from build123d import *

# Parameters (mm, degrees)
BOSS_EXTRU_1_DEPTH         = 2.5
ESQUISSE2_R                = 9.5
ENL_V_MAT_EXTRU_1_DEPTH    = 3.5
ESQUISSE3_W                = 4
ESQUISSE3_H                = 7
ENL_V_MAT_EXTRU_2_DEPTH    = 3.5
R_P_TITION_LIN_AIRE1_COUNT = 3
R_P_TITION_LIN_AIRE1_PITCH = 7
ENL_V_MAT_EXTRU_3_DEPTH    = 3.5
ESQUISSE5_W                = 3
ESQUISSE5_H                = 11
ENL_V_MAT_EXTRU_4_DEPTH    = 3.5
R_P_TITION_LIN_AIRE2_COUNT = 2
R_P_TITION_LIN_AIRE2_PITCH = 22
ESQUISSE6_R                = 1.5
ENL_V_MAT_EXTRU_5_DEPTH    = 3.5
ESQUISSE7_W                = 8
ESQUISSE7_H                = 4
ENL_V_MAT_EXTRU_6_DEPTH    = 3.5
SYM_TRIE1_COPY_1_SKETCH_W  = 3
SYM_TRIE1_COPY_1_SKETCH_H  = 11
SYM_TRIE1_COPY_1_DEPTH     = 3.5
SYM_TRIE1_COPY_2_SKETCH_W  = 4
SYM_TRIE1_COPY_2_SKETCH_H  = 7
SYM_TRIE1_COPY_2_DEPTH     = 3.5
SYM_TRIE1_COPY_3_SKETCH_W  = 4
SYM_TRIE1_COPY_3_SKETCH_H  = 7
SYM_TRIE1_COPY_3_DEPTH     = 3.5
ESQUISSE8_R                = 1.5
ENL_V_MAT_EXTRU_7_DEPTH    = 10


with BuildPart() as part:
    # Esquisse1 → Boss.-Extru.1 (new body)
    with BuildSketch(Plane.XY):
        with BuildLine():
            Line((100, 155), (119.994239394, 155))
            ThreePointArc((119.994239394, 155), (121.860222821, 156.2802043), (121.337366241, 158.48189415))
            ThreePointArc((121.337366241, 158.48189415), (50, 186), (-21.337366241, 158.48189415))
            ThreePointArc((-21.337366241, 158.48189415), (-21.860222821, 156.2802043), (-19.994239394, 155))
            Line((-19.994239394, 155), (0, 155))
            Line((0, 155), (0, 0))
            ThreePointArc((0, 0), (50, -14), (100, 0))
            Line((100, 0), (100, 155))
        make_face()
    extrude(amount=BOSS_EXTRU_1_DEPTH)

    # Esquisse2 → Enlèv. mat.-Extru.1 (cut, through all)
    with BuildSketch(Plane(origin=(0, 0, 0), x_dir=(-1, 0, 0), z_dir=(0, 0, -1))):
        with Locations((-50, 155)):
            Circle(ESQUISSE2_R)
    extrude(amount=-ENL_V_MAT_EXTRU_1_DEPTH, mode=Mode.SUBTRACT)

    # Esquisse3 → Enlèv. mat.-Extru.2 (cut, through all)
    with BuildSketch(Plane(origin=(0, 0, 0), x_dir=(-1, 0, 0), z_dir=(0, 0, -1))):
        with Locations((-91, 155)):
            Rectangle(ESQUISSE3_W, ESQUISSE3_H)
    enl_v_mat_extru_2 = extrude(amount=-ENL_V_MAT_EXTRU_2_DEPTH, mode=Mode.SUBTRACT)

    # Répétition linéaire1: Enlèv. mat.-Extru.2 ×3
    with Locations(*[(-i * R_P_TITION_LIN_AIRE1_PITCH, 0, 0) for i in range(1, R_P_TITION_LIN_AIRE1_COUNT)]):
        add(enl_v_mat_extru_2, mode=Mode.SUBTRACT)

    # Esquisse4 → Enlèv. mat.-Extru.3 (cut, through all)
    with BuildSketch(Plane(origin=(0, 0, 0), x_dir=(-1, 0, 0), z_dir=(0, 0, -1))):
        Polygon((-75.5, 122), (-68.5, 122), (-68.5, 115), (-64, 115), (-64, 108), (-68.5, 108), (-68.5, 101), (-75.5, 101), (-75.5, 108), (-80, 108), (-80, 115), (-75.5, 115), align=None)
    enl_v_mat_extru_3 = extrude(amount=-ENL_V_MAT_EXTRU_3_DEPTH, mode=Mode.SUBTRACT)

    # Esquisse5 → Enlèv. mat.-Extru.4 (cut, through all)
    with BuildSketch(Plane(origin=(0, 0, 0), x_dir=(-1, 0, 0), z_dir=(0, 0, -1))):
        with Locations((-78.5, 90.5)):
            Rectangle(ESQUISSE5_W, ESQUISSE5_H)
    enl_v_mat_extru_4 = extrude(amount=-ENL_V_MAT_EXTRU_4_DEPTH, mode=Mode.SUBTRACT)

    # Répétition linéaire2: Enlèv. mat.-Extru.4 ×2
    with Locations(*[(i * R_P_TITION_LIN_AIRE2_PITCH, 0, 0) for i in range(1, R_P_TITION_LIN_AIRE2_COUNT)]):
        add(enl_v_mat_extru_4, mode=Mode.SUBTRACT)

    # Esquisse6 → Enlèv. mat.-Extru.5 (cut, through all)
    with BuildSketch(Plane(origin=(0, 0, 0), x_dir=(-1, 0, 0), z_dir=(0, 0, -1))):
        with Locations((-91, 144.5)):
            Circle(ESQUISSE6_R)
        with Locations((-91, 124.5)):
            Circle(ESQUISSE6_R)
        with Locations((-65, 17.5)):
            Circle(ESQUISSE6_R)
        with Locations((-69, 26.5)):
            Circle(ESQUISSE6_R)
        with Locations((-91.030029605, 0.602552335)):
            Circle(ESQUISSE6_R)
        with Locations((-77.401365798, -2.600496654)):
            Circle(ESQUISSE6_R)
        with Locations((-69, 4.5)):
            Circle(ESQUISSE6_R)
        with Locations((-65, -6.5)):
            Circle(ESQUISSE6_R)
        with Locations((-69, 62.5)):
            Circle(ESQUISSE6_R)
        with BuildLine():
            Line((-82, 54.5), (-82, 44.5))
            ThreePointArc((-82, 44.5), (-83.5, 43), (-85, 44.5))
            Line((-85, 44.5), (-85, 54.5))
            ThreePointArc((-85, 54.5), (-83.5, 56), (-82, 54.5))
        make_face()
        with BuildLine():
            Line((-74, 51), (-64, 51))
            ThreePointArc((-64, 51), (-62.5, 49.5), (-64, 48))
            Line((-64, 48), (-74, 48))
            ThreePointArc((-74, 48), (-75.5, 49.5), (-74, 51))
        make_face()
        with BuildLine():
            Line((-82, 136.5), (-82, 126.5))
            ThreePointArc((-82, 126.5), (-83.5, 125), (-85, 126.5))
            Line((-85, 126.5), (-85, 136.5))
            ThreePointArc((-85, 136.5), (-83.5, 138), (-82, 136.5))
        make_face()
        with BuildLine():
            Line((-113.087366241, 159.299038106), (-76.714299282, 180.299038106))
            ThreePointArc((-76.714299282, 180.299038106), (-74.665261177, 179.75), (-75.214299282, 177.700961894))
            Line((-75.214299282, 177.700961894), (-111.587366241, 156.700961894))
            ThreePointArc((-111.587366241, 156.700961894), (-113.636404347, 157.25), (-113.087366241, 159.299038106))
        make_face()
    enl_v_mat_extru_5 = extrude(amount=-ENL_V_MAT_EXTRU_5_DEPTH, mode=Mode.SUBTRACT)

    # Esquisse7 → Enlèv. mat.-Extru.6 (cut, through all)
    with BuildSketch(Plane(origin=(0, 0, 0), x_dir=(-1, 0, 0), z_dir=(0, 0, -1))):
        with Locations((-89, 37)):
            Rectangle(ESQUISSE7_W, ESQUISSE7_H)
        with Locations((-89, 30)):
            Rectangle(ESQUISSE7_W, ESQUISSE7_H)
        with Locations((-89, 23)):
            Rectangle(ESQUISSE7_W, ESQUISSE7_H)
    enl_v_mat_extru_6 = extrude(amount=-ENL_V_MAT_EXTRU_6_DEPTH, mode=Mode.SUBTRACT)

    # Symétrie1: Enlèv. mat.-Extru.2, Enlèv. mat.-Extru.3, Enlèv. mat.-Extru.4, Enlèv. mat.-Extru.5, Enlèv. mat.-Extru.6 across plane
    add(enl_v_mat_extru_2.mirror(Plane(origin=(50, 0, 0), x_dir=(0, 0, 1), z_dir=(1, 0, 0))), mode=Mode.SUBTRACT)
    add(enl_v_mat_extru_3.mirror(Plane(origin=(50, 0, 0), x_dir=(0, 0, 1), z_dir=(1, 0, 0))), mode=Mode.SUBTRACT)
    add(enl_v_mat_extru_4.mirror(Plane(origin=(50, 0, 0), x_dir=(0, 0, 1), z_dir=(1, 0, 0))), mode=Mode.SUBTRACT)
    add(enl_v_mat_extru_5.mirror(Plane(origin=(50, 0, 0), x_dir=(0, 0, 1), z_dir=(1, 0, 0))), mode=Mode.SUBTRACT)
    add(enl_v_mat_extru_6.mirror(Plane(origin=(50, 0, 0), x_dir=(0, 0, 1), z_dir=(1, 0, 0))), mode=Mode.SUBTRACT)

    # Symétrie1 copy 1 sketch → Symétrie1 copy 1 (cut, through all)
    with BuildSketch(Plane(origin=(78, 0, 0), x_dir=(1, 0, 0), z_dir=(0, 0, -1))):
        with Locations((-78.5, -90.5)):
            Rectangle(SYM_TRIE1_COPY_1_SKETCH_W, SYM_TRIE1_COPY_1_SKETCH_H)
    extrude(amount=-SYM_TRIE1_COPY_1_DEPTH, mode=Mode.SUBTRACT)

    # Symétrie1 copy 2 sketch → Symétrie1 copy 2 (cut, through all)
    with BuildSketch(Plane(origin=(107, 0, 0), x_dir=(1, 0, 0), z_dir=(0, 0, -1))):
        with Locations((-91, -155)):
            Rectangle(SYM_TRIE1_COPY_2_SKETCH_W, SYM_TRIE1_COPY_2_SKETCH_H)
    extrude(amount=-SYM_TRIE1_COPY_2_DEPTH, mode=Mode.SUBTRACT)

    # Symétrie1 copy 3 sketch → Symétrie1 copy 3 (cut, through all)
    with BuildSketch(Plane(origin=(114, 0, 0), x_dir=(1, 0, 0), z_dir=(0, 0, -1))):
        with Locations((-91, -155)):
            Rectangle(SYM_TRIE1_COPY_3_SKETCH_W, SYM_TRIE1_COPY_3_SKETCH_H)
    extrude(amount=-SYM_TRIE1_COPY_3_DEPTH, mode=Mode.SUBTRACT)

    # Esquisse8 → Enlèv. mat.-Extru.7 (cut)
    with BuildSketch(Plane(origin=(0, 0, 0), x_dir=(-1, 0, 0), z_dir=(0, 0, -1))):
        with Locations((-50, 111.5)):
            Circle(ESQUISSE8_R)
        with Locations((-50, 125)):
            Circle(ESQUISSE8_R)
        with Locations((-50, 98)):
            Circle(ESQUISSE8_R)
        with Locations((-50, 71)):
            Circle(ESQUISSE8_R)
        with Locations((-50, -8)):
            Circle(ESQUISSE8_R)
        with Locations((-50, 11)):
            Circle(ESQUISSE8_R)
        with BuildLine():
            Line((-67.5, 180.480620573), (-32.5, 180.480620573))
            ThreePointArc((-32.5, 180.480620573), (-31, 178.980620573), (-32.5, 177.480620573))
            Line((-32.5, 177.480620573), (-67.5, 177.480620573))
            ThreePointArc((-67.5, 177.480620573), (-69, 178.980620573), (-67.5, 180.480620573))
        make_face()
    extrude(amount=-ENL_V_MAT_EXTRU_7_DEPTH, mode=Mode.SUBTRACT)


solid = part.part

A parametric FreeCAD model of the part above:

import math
import FreeCAD as App
import Part
import Sketcher
from FreeCAD import Vector
Q = App.Units.Quantity

doc = App.newDocument("Part")
params = doc.addObject("Spreadsheet::Sheet", "Params")
for row, (alias, value) in enumerate([
    ("sketch1_radius", "2 mm"),
    ("sketch1_height", "155 mm"),
    ("pad1_length", "2.5 mm"),
    ("sketch2_diameter", "19 mm"),
    ("sketch3_width", "4 mm"),
    ("sketch3_height", "7 mm"),
    ("linearpattern_pitch", "7 mm"),
    ("sketch4_width", "7 mm"),
    ("sketch4_width2", "4.5 mm"),
    ("sketch5_width", "3 mm"),
    ("sketch5_height", "11 mm"),
    ("linearpattern2_pitch", "22 mm"),
    ("sketch6_diameter", "3 mm"),
    ("sketch6_width", "10 mm"),
    ("sketch6_length", "42 mm"),
    ("sketch7_width", "8 mm"),
    ("sketch7_height", "4 mm"),
    ("sketch8_width", "3 mm"),
    ("sketch8_height", "11 mm"),
    ("sketch9_width", "4 mm"),
    ("sketch9_height", "7 mm"),
    ("sketch10_width", "4 mm"),
    ("sketch10_height", "7 mm"),
    ("sketch11_diameter", "3 mm"),
    ("sketch11_width", "35 mm"),
    ("pocket10_length", "10 mm"),
], start=1):
    params.set(f"A{row}", alias)
    params.set(f"B{row}", "=" + value)
    params.setAlias(f"B{row}", alias)

body = doc.addObject("PartDesign::Body", "Body")

# Sketch on XY plane
sketch1 = doc.addObject("Sketcher::SketchObject", "Sketch")
body.addObject(sketch1)
sketch1.AttachmentSupport = (doc.XY_Plane, [""])
sketch1.MapMode = "FlatFace"
sketch1.addGeometry([
    Part.LineSegment(Vector(100, 155, 0), Vector(120, 155, 0)),  # 0
    Part.ArcOfCircle(Part.Circle(Vector(120, 157, 0), Vector(0, 0, 1), 2), math.radians(-90), math.radians(48)),  # 1
    Part.ArcOfCircle(Part.Circle(Vector(50, 79.8, 0), Vector(0, 0, 1), 106.2), math.radians(48), math.radians(132)),  # 2
    Part.ArcOfCircle(Part.Circle(Vector(-20, 157, 0), Vector(0, 0, 1), 2), math.radians(132), math.radians(270)),  # 3
    Part.LineSegment(Vector(-20, 155, 0), Vector(0, 155, 0)),  # 4
    Part.LineSegment(Vector(0, 155, 0), Vector(0, 0, 0)),  # 5
    Part.ArcOfCircle(Part.Circle(Vector(50, 82.3, 0), Vector(0, 0, 1), 96.3), math.radians(-121), math.radians(-59)),  # 6
    Part.LineSegment(Vector(100, 0, 0), Vector(100, 155, 0)),  # 7
], False)
sketch1.addConstraint([
    Sketcher.Constraint("Tangent", 0, 2, 1, 1),
    Sketcher.Constraint("Tangent", 1, 2, 2, 1),
    Sketcher.Constraint("Tangent", 2, 2, 3, 1),
    Sketcher.Constraint("Tangent", 3, 2, 4, 1),
    Sketcher.Constraint("Coincident", 4, 2, 5, 1),
    Sketcher.Constraint("Coincident", 5, 2, 6, 1),
    Sketcher.Constraint("Coincident", 6, 2, 7, 1),
    Sketcher.Constraint("Coincident", 7, 2, 0, 1),
    Sketcher.Constraint("Horizontal", 0),
    Sketcher.Constraint("Horizontal", 4),
    Sketcher.Constraint("Vertical", 5),
    Sketcher.Constraint("Vertical", 7),
    Sketcher.Constraint("Coincident", 5, 2, -1, 1),
    Sketcher.Constraint("Equal", 1, 3),
    Sketcher.Constraint("PointOnObject", 6, 2, -1),
    Sketcher.Constraint("Horizontal", 1, 3, 3, 3),
    Sketcher.Constraint("Vertical", 2, 3, 6, 3),
    Sketcher.Constraint("Radius", 1, 2.0),
    Sketcher.Constraint("DistanceY", 5, 2, 5, 1, 155.0),
    Sketcher.Constraint("DistanceX", -1, 1, 2, 3, 50.0),
    Sketcher.Constraint("Radius", 2, 106.225806),
    Sketcher.Constraint("Radius", 6, 96.285714),
    Sketcher.Constraint("DistanceX", 0, 1, 0, 2, 19.994239),
])
sketch1.setExpression("Constraints[17]", "Params.sketch1_radius")
sketch1.setExpression("Constraints[18]", "Params.sketch1_height")
pad1 = doc.addObject("PartDesign::Pad", "Pad")
body.addObject(pad1)
pad1.Profile = sketch1
pad1.setExpression("Length", "Params.pad1_length")

# Sketch on XY plane
sketch2 = doc.addObject("Sketcher::SketchObject", "Sketch001")
body.addObject(sketch2)
sketch2.AttachmentSupport = (doc.XY_Plane, [""])
sketch2.MapMode = "FlatFace"
sketch2.addGeometry(Part.Circle(Vector(50, 155, 0), Vector(0, 0, 1), 10), False)
sketch2.addConstraint([
    Sketcher.Constraint("Diameter", 0, 19.0),
    Sketcher.Constraint("DistanceX", -1, 1, 0, 3, 50.0),
    Sketcher.Constraint("DistanceY", -1, 1, 0, 3, 155.0),
])
sketch2.setExpression("Constraints[0]", "Params.sketch2_diameter")
pocket1 = doc.addObject("PartDesign::Pocket", "Pocket")
body.addObject(pocket1)
pocket1.Profile = sketch2
pocket1.Type = "ThroughAll"
pocket1.Reversed = True

# Sketch on XY plane
sketch3 = doc.addObject("Sketcher::SketchObject", "Sketch002")
body.addObject(sketch3)
sketch3.AttachmentSupport = (doc.XY_Plane, [""])
sketch3.MapMode = "FlatFace"
sketch3.addGeometry([
    Part.LineSegment(Vector(93, 158.5, 0), Vector(93, 151.5, 0)),
    Part.LineSegment(Vector(93, 151.5, 0), Vector(89, 151.5, 0)),
    Part.LineSegment(Vector(89, 151.5, 0), Vector(89, 158.5, 0)),
    Part.LineSegment(Vector(89, 158.5, 0), Vector(93, 158.5, 0)),
], False)
sketch3.addConstraint([
    Sketcher.Constraint("Coincident", 0, 2, 1, 1),
    Sketcher.Constraint("Coincident", 1, 2, 2, 1),
    Sketcher.Constraint("Coincident", 2, 2, 3, 1),
    Sketcher.Constraint("Coincident", 3, 2, 0, 1),
    Sketcher.Constraint("Vertical", 0),
    Sketcher.Constraint("Horizontal", 1),
    Sketcher.Constraint("Vertical", 2),
    Sketcher.Constraint("Horizontal", 3),
    Sketcher.Constraint("DistanceX", 1, 2, 1, 1, 4.0),
    Sketcher.Constraint("DistanceY", 0, 2, 0, 1, 7.0),
    Sketcher.Constraint("DistanceX", -1, 1, 0, 2, 93.0),
    Sketcher.Constraint("DistanceY", -1, 1, 0, 2, 151.5),
])
sketch3.setExpression("Constraints[8]", "Params.sketch3_width")
sketch3.setExpression("Constraints[9]", "Params.sketch3_height")
pocket2 = doc.addObject("PartDesign::Pocket", "Pocket001")
body.addObject(pocket2)
pocket2.Profile = sketch3
pocket2.Type = "ThroughAll"
pocket2.Reversed = True
doc.recompute()

linearpattern = doc.addObject("PartDesign::LinearPattern", "LinearPattern")
body.addObject(linearpattern)
linearpattern.Originals = [pocket2]
linearpattern.Direction = (doc.X_Axis, [""])
linearpattern.Mode = "offset"
linearpattern.setExpression("Offset", "Params.linearpattern_pitch")
linearpattern.Occurrences = 3
linearpattern.Reversed = True
body.Tip = linearpattern

# Sketch on XY plane
sketch4 = doc.addObject("Sketcher::SketchObject", "Sketch003")
body.addObject(sketch4)
sketch4.AttachmentSupport = (doc.XY_Plane, [""])
sketch4.MapMode = "FlatFace"
sketch4.addGeometry([
    Part.LineSegment(Vector(68.5, 122, 0), Vector(75.5, 122, 0)),  # 0
    Part.LineSegment(Vector(75.5, 122, 0), Vector(75.5, 115, 0)),  # 1
    Part.LineSegment(Vector(75.5, 115, 0), Vector(80, 115, 0)),  # 2
    Part.LineSegment(Vector(80, 115, 0), Vector(80, 108, 0)),  # 3
    Part.LineSegment(Vector(80, 108, 0), Vector(75.5, 108, 0)),  # 4
    Part.LineSegment(Vector(75.5, 108, 0), Vector(75.5, 101, 0)),  # 5
    Part.LineSegment(Vector(75.5, 101, 0), Vector(68.5, 101, 0)),  # 6
    Part.LineSegment(Vector(68.5, 101, 0), Vector(68.5, 108, 0)),  # 7
    Part.LineSegment(Vector(68.5, 108, 0), Vector(64, 108, 0)),  # 8
    Part.LineSegment(Vector(64, 108, 0), Vector(64, 115, 0)),  # 9
    Part.LineSegment(Vector(64, 115, 0), Vector(68.5, 115, 0)),  # 10
    Part.LineSegment(Vector(68.5, 115, 0), Vector(68.5, 122, 0)),  # 11
], False)
sketch4.addConstraint([
    Sketcher.Constraint("Coincident", 0, 2, 1, 1),
    Sketcher.Constraint("Coincident", 1, 2, 2, 1),
    Sketcher.Constraint("Coincident", 2, 2, 3, 1),
    Sketcher.Constraint("Coincident", 3, 2, 4, 1),
    Sketcher.Constraint("Coincident", 4, 2, 5, 1),
    Sketcher.Constraint("Coincident", 5, 2, 6, 1),
    Sketcher.Constraint("Coincident", 6, 2, 7, 1),
    Sketcher.Constraint("Coincident", 7, 2, 8, 1),
    Sketcher.Constraint("Coincident", 8, 2, 9, 1),
    Sketcher.Constraint("Coincident", 9, 2, 10, 1),
    Sketcher.Constraint("Coincident", 10, 2, 11, 1),
    Sketcher.Constraint("Coincident", 11, 2, 0, 1),
    Sketcher.Constraint("Horizontal", 0),
    Sketcher.Constraint("Vertical", 1),
    Sketcher.Constraint("Horizontal", 2),
    Sketcher.Constraint("Vertical", 3),
    Sketcher.Constraint("Horizontal", 4),
    Sketcher.Constraint("Vertical", 5),
    Sketcher.Constraint("Horizontal", 6),
    Sketcher.Constraint("Vertical", 7),
    Sketcher.Constraint("Horizontal", 8),
    Sketcher.Constraint("Vertical", 9),
    Sketcher.Constraint("Horizontal", 10),
    Sketcher.Constraint("Vertical", 11),
    Sketcher.Constraint("Horizontal", 4, 2, 7, 2),
    Sketcher.Constraint("Horizontal", 2, 2, 9, 2),
    Sketcher.Constraint("Vertical", 1, 2, 4, 2),
    Sketcher.Constraint("Vertical", 7, 2, 10, 2),
    Sketcher.Constraint("Equal", 4, 8),
    Sketcher.Constraint("Equal", 6, 1),
    Sketcher.Constraint("Equal", 1, 3),
    Sketcher.Constraint("Equal", 3, 5),
    Sketcher.Constraint("DistanceX", 0, 1, 0, 2, 7.0),
    Sketcher.Constraint("DistanceX", 2, 1, 2, 2, 4.5),
    Sketcher.Constraint("DistanceY", -1, 1, 0, 2, 122.0),
    Sketcher.Constraint("DistanceX", -1, 1, 2, 2, 80.0),
])
sketch4.setExpression("Constraints[32]", "Params.sketch4_width")
sketch4.setExpression("Constraints[33]", "Params.sketch4_width2")
pocket3 = doc.addObject("PartDesign::Pocket", "Pocket002")
body.addObject(pocket3)
pocket3.Profile = sketch4
pocket3.Type = "ThroughAll"
pocket3.Reversed = True

# Sketch on XY plane
sketch5 = doc.addObject("Sketcher::SketchObject", "Sketch004")
body.addObject(sketch5)
sketch5.AttachmentSupport = (doc.XY_Plane, [""])
sketch5.MapMode = "FlatFace"
sketch5.addGeometry([
    Part.LineSegment(Vector(80, 96, 0), Vector(80, 85, 0)),
    Part.LineSegment(Vector(80, 85, 0), Vector(77, 85, 0)),
    Part.LineSegment(Vector(77, 85, 0), Vector(77, 96, 0)),
    Part.LineSegment(Vector(77, 96, 0), Vector(80, 96, 0)),
], False)
sketch5.addConstraint([
    Sketcher.Constraint("Coincident", 0, 2, 1, 1),
    Sketcher.Constraint("Coincident", 1, 2, 2, 1),
    Sketcher.Constraint("Coincident", 2, 2, 3, 1),
    Sketcher.Constraint("Coincident", 3, 2, 0, 1),
    Sketcher.Constraint("Vertical", 0),
    Sketcher.Constraint("Horizontal", 1),
    Sketcher.Constraint("Vertical", 2),
    Sketcher.Constraint("Horizontal", 3),
    Sketcher.Constraint("DistanceX", 1, 2, 1, 1, 3.0),
    Sketcher.Constraint("DistanceY", 0, 2, 0, 1, 11.0),
    Sketcher.Constraint("DistanceX", -1, 1, 0, 2, 80.0),
    Sketcher.Constraint("DistanceY", -1, 1, 0, 2, 85.0),
])
sketch5.setExpression("Constraints[8]", "Params.sketch5_width")
sketch5.setExpression("Constraints[9]", "Params.sketch5_height")
pocket4 = doc.addObject("PartDesign::Pocket", "Pocket003")
body.addObject(pocket4)
pocket4.Profile = sketch5
pocket4.Type = "ThroughAll"
pocket4.Reversed = True
doc.recompute()

linearpattern2 = doc.addObject("PartDesign::LinearPattern", "LinearPattern001")
body.addObject(linearpattern2)
linearpattern2.Originals = [pocket4]
linearpattern2.Direction = (doc.X_Axis, [""])
linearpattern2.Mode = "offset"
linearpattern2.setExpression("Offset", "Params.linearpattern2_pitch")
linearpattern2.Occurrences = 2
body.Tip = linearpattern2

# Sketch on XY plane
sketch6 = doc.addObject("Sketcher::SketchObject", "Sketch005")
body.addObject(sketch6)
sketch6.AttachmentSupport = (doc.XY_Plane, [""])
sketch6.MapMode = "FlatFace"
sketch6.addGeometry([
    Part.Circle(Vector(91, 144.5, 0), Vector(0, 0, 1), 1.5),  # 0
    Part.Circle(Vector(91, 124.5, 0), Vector(0, 0, 1), 1.5),  # 1
    Part.Circle(Vector(65, 17.5, 0), Vector(0, 0, 1), 1.5),  # 2
    Part.Circle(Vector(69, 26.5, 0), Vector(0, 0, 1), 1.5),  # 3
    Part.Circle(Vector(91, 0.6, 0), Vector(0, 0, 1), 1.5),  # 4
    Part.Circle(Vector(77.4, -2.6, 0), Vector(0, 0, 1), 1.5),  # 5
    Part.Circle(Vector(69, 4.5, 0), Vector(0, 0, 1), 1.5),  # 6
    Part.Circle(Vector(65, -6.5, 0), Vector(0, 0, 1), 1.5),  # 7
    Part.Circle(Vector(69, 62.5, 0), Vector(0, 0, 1), 1.5),  # 8
    Part.LineSegment(Vector(82, 44.5, 0), Vector(82, 54.5, 0)),  # 9
    Part.ArcOfCircle(Part.Circle(Vector(83.5, 54.5, 0), Vector(0, 0, 1), 1.5), math.radians(0), math.radians(180)),  # 10
    Part.LineSegment(Vector(85, 54.5, 0), Vector(85, 44.5, 0)),  # 11
    Part.ArcOfCircle(Part.Circle(Vector(83.5, 44.5, 0), Vector(0, 0, 1), 1.5), math.radians(180), math.radians(360)),  # 12
    Part.LineSegment(Vector(64, 51, 0), Vector(74, 51, 0)),  # 13
    Part.ArcOfCircle(Part.Circle(Vector(74, 49.5, 0), Vector(0, 0, 1), 1.5), math.radians(-90), math.radians(90)),  # 14
    Part.LineSegment(Vector(74, 48, 0), Vector(64, 48, 0)),  # 15
    Part.ArcOfCircle(Part.Circle(Vector(64, 49.5, 0), Vector(0, 0, 1), 1.5), math.radians(90), math.radians(270)),  # 16
    Part.LineSegment(Vector(82, 126.5, 0), Vector(82, 136.5, 0)),  # 17
    Part.ArcOfCircle(Part.Circle(Vector(83.5, 136.5, 0), Vector(0, 0, 1), 1.5), math.radians(0), math.radians(180)),  # 18
    Part.LineSegment(Vector(85, 136.5, 0), Vector(85, 126.5, 0)),  # 19
    Part.ArcOfCircle(Part.Circle(Vector(83.5, 126.5, 0), Vector(0, 0, 1), 1.5), math.radians(180), math.radians(360)),  # 20
    Part.LineSegment(Vector(76.7, 180.3, 0), Vector(113.1, 159.3, 0)),  # 21
    Part.ArcOfCircle(Part.Circle(Vector(112.3, 158, 0), Vector(0, 0, 1), 1.5), math.radians(-120), math.radians(60)),  # 22
    Part.LineSegment(Vector(111.6, 156.7, 0), Vector(75.2, 177.7, 0)),  # 23
    Part.ArcOfCircle(Part.Circle(Vector(76, 179, 0), Vector(0, 0, 1), 1.5), math.radians(60), math.radians(240)),  # 24
], False)
sketch6.addConstraint([
    Sketcher.Constraint("Tangent", 9, 2, 10, 2),
    Sketcher.Constraint("Tangent", 10, 1, 11, 1),
    Sketcher.Constraint("Tangent", 11, 2, 12, 2),
    Sketcher.Constraint("Tangent", 12, 1, 9, 1),
    Sketcher.Constraint("Tangent", 13, 2, 14, 2),
    Sketcher.Constraint("Tangent", 14, 1, 15, 1),
    Sketcher.Constraint("Tangent", 15, 2, 16, 2),
    Sketcher.Constraint("Tangent", 16, 1, 13, 1),
    Sketcher.Constraint("Tangent", 17, 2, 18, 2),
    Sketcher.Constraint("Tangent", 18, 1, 19, 1),
    Sketcher.Constraint("Tangent", 19, 2, 20, 2),
    Sketcher.Constraint("Tangent", 20, 1, 17, 1),
    Sketcher.Constraint("Tangent", 21, 2, 22, 2),
    Sketcher.Constraint("Tangent", 22, 1, 23, 1),
    Sketcher.Constraint("Tangent", 23, 2, 24, 2),
    Sketcher.Constraint("Tangent", 24, 1, 21, 1),
    Sketcher.Constraint("Vertical", 9),
    Sketcher.Constraint("Vertical", 11),
    Sketcher.Constraint("Horizontal", 13),
    Sketcher.Constraint("Horizontal", 15),
    Sketcher.Constraint("Vertical", 17),
    Sketcher.Constraint("Vertical", 19),
    Sketcher.Constraint("Equal", 0, 1),
    Sketcher.Constraint("Equal", 1, 2),
    Sketcher.Constraint("Equal", 2, 3),
    Sketcher.Constraint("Equal", 3, 4),
    Sketcher.Constraint("Equal", 4, 5),
    Sketcher.Constraint("Equal", 5, 6),
    Sketcher.Constraint("Equal", 6, 7),
    Sketcher.Constraint("Equal", 7, 8),
    Sketcher.Constraint("Equal", 8, 10),
    Sketcher.Constraint("Equal", 12, 14),
    Sketcher.Constraint("Equal", 16, 18),
    Sketcher.Constraint("Equal", 20, 22),
    Sketcher.Constraint("Equal", 22, 24),
    Sketcher.Constraint("Vertical", 0, 3, 1, 3),
    Sketcher.Constraint("Vertical", 3, 3, 6, 3),
    Sketcher.Constraint("Vertical", 2, 3, 7, 3),
    Sketcher.Constraint("Vertical", 6, 3, 8, 3),
    Sketcher.Constraint("Vertical", 12, 3, 18, 3),
    Sketcher.Constraint("Equal", 15, 9),
    Sketcher.Constraint("Equal", 11, 17),
    Sketcher.Constraint("Diameter", 0, 3.0),
    Sketcher.Constraint("DistanceX", 13, 1, 13, 2, 10.0),
    Sketcher.Constraint("Angle", 21, Q("-30 deg")),
    Sketcher.Constraint("Distance", 21, 42.0),
    Sketcher.Constraint("DistanceX", -1, 1, 0, 3, 91.0),
    Sketcher.Constraint("DistanceX", -1, 1, 2, 3, 65.0),
    Sketcher.Constraint("DistanceX", -1, 1, 3, 3, 69.0),
    Sketcher.Constraint("DistanceX", -1, 1, 14, 3, 74.0),
    Sketcher.Constraint("DistanceY", -1, 1, 22, 3, 158.0),
    Sketcher.Constraint("DistanceX", -1, 1, 9, 2, 82.0),
    Sketcher.Constraint("DistanceY", -1, 1, 13, 2, 51.0),
    Sketcher.Constraint("DistanceY", 1, 3, 0, 3, 20.0),
    Sketcher.Constraint("DistanceY", 2, 3, 1, 3, 107.0),
    Sketcher.Constraint("DistanceY", 2, 3, 3, 3, 9.0),
    Sketcher.Constraint("DistanceY", 6, 3, 2, 3, 13.0),
    Sketcher.Constraint("DistanceY", 7, 3, 6, 3, 11.0),
    Sketcher.Constraint("DistanceY", 3, 3, 8, 3, 36.0),
    Sketcher.Constraint("DistanceY", 10, 3, 8, 3, 8.0),
    Sketcher.Constraint("DistanceY", 14, 3, 10, 3, 5.0),
    Sketcher.Constraint("DistanceY", 18, 3, 0, 3, 8.0),
    Sketcher.Constraint("DistanceX", -1, 1, 24, 3, 75.964299),
    Sketcher.Constraint("DistanceX", -1, 1, 4, 3, 91.03003),
    Sketcher.Constraint("DistanceY", 5, 3, 4, 3, 3.203049),
    Sketcher.Constraint("DistanceY", -1, 1, 4, 3, 0.602552),
    Sketcher.Constraint("DistanceX", -1, 1, 5, 3, 77.401366),
])
sketch6.setExpression("Constraints[42]", "Params.sketch6_diameter")
sketch6.setExpression("Constraints[43]", "Params.sketch6_width")
sketch6.setExpression("Constraints[45]", "Params.sketch6_length")
pocket5 = doc.addObject("PartDesign::Pocket", "Pocket004")
body.addObject(pocket5)
pocket5.Profile = sketch6
pocket5.Type = "ThroughAll"
pocket5.Reversed = True

# Sketch on XY plane
sketch7 = doc.addObject("Sketcher::SketchObject", "Sketch006")
body.addObject(sketch7)
sketch7.AttachmentSupport = (doc.XY_Plane, [""])
sketch7.MapMode = "FlatFace"
sketch7.addGeometry([
    Part.LineSegment(Vector(93, 39, 0), Vector(93, 35, 0)),  # 0
    Part.LineSegment(Vector(93, 35, 0), Vector(85, 35, 0)),  # 1
    Part.LineSegment(Vector(85, 35, 0), Vector(85, 39, 0)),  # 2
    Part.LineSegment(Vector(85, 39, 0), Vector(93, 39, 0)),  # 3
    Part.LineSegment(Vector(93, 32, 0), Vector(93, 28, 0)),  # 4
    Part.LineSegment(Vector(93, 28, 0), Vector(85, 28, 0)),  # 5
    Part.LineSegment(Vector(85, 28, 0), Vector(85, 32, 0)),  # 6
    Part.LineSegment(Vector(85, 32, 0), Vector(93, 32, 0)),  # 7
    Part.LineSegment(Vector(93, 25, 0), Vector(93, 21, 0)),  # 8
    Part.LineSegment(Vector(93, 21, 0), Vector(85, 21, 0)),  # 9
    Part.LineSegment(Vector(85, 21, 0), Vector(85, 25, 0)),  # 10
    Part.LineSegment(Vector(85, 25, 0), Vector(93, 25, 0)),  # 11
], False)
sketch7.addConstraint([
    Sketcher.Constraint("Coincident", 0, 2, 1, 1),
    Sketcher.Constraint("Coincident", 1, 2, 2, 1),
    Sketcher.Constraint("Coincident", 2, 2, 3, 1),
    Sketcher.Constraint("Coincident", 3, 2, 0, 1),
    Sketcher.Constraint("Coincident", 4, 2, 5, 1),
    Sketcher.Constraint("Coincident", 5, 2, 6, 1),
    Sketcher.Constraint("Coincident", 6, 2, 7, 1),
    Sketcher.Constraint("Coincident", 7, 2, 4, 1),
    Sketcher.Constraint("Coincident", 8, 2, 9, 1),
    Sketcher.Constraint("Coincident", 9, 2, 10, 1),
    Sketcher.Constraint("Coincident", 10, 2, 11, 1),
    Sketcher.Constraint("Coincident", 11, 2, 8, 1),
    Sketcher.Constraint("Vertical", 0),
    Sketcher.Constraint("Horizontal", 1),
    Sketcher.Constraint("Vertical", 2),
    Sketcher.Constraint("Horizontal", 3),
    Sketcher.Constraint("Vertical", 4),
    Sketcher.Constraint("Horizontal", 5),
    Sketcher.Constraint("Vertical", 6),
    Sketcher.Constraint("Horizontal", 7),
    Sketcher.Constraint("Vertical", 8),
    Sketcher.Constraint("Horizontal", 9),
    Sketcher.Constraint("Vertical", 10),
    Sketcher.Constraint("Horizontal", 11),
    Sketcher.Constraint("Vertical", 3, 2, 4, 2),
    Sketcher.Constraint("Vertical", 2, 2, 5, 2),
    Sketcher.Constraint("Vertical", 7, 2, 8, 2),
    Sketcher.Constraint("Vertical", 6, 2, 9, 2),
    Sketcher.Constraint("Equal", 2, 4),
    Sketcher.Constraint("Equal", 6, 8),
    Sketcher.Constraint("DistanceX", 1, 2, 1, 1, 8.0),
    Sketcher.Constraint("DistanceY", 0, 2, 0, 1, 4.0),
    Sketcher.Constraint("DistanceX", -1, 1, 0, 2, 93.0),
    Sketcher.Constraint("DistanceY", -1, 1, 0, 2, 35.0),
    Sketcher.Constraint("DistanceY", -1, 1, 4, 2, 28.0),
    Sketcher.Constraint("DistanceY", -1, 1, 8, 2, 21.0),
])
sketch7.setExpression("Constraints[30]", "Params.sketch7_width")
sketch7.setExpression("Constraints[31]", "Params.sketch7_height")
pocket6 = doc.addObject("PartDesign::Pocket", "Pocket005")
body.addObject(pocket6)
pocket6.Profile = sketch7
pocket6.Type = "ThroughAll"
pocket6.Reversed = True
doc.recompute()

datumplane = doc.addObject("PartDesign::Plane", "DatumPlane")
body.addObject(datumplane)
datumplane.AttachmentSupport = (doc.YZ_Plane, [""])
datumplane.MapMode = "FlatFace"
datumplane.AttachmentOffset = App.Placement(Vector(0, 0, 50), App.Rotation())
mirrored = doc.addObject("PartDesign::Mirrored", "Mirrored")
body.addObject(mirrored)
mirrored.Originals = [pocket2, pocket3, pocket4, pocket5, pocket6]
mirrored.MirrorPlane = (datumplane, [""])
body.Tip = mirrored

# Sketch on XY plane
sketch8 = doc.addObject("Sketcher::SketchObject", "Sketch007")
body.addObject(sketch8)
sketch8.AttachmentSupport = (doc.XY_Plane, [""])
sketch8.MapMode = "FlatFace"
sketch8.addGeometry([
    Part.LineSegment(Vector(-2, 85, 0), Vector(-2, 96, 0)),
    Part.LineSegment(Vector(-2, 96, 0), Vector(1, 96, 0)),
    Part.LineSegment(Vector(1, 96, 0), Vector(1, 85, 0)),
    Part.LineSegment(Vector(1, 85, 0), Vector(-2, 85, 0)),
], False)
sketch8.addConstraint([
    Sketcher.Constraint("Coincident", 0, 2, 1, 1),
    Sketcher.Constraint("Coincident", 1, 2, 2, 1),
    Sketcher.Constraint("Coincident", 2, 2, 3, 1),
    Sketcher.Constraint("Coincident", 3, 2, 0, 1),
    Sketcher.Constraint("Vertical", 0),
    Sketcher.Constraint("Horizontal", 1),
    Sketcher.Constraint("Vertical", 2),
    Sketcher.Constraint("Horizontal", 3),
    Sketcher.Constraint("DistanceX", 1, 1, 1, 2, 3.0),
    Sketcher.Constraint("DistanceY", 0, 1, 0, 2, 11.0),
    Sketcher.Constraint("DistanceX", 0, 2, -1, 1, 2.0),
    Sketcher.Constraint("DistanceY", -1, 1, 0, 2, 96.0),
])
sketch8.setExpression("Constraints[8]", "Params.sketch8_width")
sketch8.setExpression("Constraints[9]", "Params.sketch8_height")
pocket7 = doc.addObject("PartDesign::Pocket", "Pocket006")
body.addObject(pocket7)
pocket7.Profile = sketch8
pocket7.Type = "ThroughAll"
pocket7.Reversed = True

# Sketch on XY plane
sketch9 = doc.addObject("Sketcher::SketchObject", "Sketch008")
body.addObject(sketch9)
sketch9.AttachmentSupport = (doc.XY_Plane, [""])
sketch9.MapMode = "FlatFace"
sketch9.addGeometry([
    Part.LineSegment(Vector(14, 151.5, 0), Vector(14, 158.5, 0)),
    Part.LineSegment(Vector(14, 158.5, 0), Vector(18, 158.5, 0)),
    Part.LineSegment(Vector(18, 158.5, 0), Vector(18, 151.5, 0)),
    Part.LineSegment(Vector(18, 151.5, 0), Vector(14, 151.5, 0)),
], False)
sketch9.addConstraint([
    Sketcher.Constraint("Coincident", 0, 2, 1, 1),
    Sketcher.Constraint("Coincident", 1, 2, 2, 1),
    Sketcher.Constraint("Coincident", 2, 2, 3, 1),
    Sketcher.Constraint("Coincident", 3, 2, 0, 1),
    Sketcher.Constraint("Vertical", 0),
    Sketcher.Constraint("Horizontal", 1),
    Sketcher.Constraint("Vertical", 2),
    Sketcher.Constraint("Horizontal", 3),
    Sketcher.Constraint("DistanceX", 1, 1, 1, 2, 4.0),
    Sketcher.Constraint("DistanceY", 0, 1, 0, 2, 7.0),
    Sketcher.Constraint("DistanceX", -1, 1, 0, 2, 14.0),
    Sketcher.Constraint("DistanceY", -1, 1, 0, 2, 158.5),
])
sketch9.setExpression("Constraints[8]", "Params.sketch9_width")
sketch9.setExpression("Constraints[9]", "Params.sketch9_height")
pocket8 = doc.addObject("PartDesign::Pocket", "Pocket007")
body.addObject(pocket8)
pocket8.Profile = sketch9
pocket8.Type = "ThroughAll"
pocket8.Reversed = True

# Sketch on XY plane
sketch10 = doc.addObject("Sketcher::SketchObject", "Sketch009")
body.addObject(sketch10)
sketch10.AttachmentSupport = (doc.XY_Plane, [""])
sketch10.MapMode = "FlatFace"
sketch10.addGeometry([
    Part.LineSegment(Vector(21, 151.5, 0), Vector(21, 158.5, 0)),
    Part.LineSegment(Vector(21, 158.5, 0), Vector(25, 158.5, 0)),
    Part.LineSegment(Vector(25, 158.5, 0), Vector(25, 151.5, 0)),
    Part.LineSegment(Vector(25, 151.5, 0), Vector(21, 151.5, 0)),
], False)
sketch10.addConstraint([
    Sketcher.Constraint("Coincident", 0, 2, 1, 1),
    Sketcher.Constraint("Coincident", 1, 2, 2, 1),
    Sketcher.Constraint("Coincident", 2, 2, 3, 1),
    Sketcher.Constraint("Coincident", 3, 2, 0, 1),
    Sketcher.Constraint("Vertical", 0),
    Sketcher.Constraint("Horizontal", 1),
    Sketcher.Constraint("Vertical", 2),
    Sketcher.Constraint("Horizontal", 3),
    Sketcher.Constraint("DistanceX", 1, 1, 1, 2, 4.0),
    Sketcher.Constraint("DistanceY", 0, 1, 0, 2, 7.0),
    Sketcher.Constraint("DistanceX", -1, 1, 0, 2, 21.0),
    Sketcher.Constraint("DistanceY", -1, 1, 0, 2, 158.5),
])
sketch10.setExpression("Constraints[8]", "Params.sketch10_width")
sketch10.setExpression("Constraints[9]", "Params.sketch10_height")
pocket9 = doc.addObject("PartDesign::Pocket", "Pocket008")
body.addObject(pocket9)
pocket9.Profile = sketch10
pocket9.Type = "ThroughAll"
pocket9.Reversed = True

# Sketch on XY plane
sketch11 = doc.addObject("Sketcher::SketchObject", "Sketch010")
body.addObject(sketch11)
sketch11.AttachmentSupport = (doc.XY_Plane, [""])
sketch11.MapMode = "FlatFace"
sketch11.addGeometry([
    Part.Circle(Vector(50, 111.5, 0), Vector(0, 0, 1), 1.5),  # 0
    Part.Circle(Vector(50, 125, 0), Vector(0, 0, 1), 1.5),  # 1
    Part.Circle(Vector(50, 98, 0), Vector(0, 0, 1), 1.5),  # 2
    Part.Circle(Vector(50, 71, 0), Vector(0, 0, 1), 1.5),  # 3
    Part.Circle(Vector(50, -8, 0), Vector(0, 0, 1), 1.5),  # 4
    Part.Circle(Vector(50, 11, 0), Vector(0, 0, 1), 1.5),  # 5
    Part.LineSegment(Vector(32.5, 180.5, 0), Vector(67.5, 180.5, 0)),  # 6
    Part.ArcOfCircle(Part.Circle(Vector(67.5, 179, 0), Vector(0, 0, 1), 1.5), math.radians(-90), math.radians(90)),  # 7
    Part.LineSegment(Vector(67.5, 177.5, 0), Vector(32.5, 177.5, 0)),  # 8
    Part.ArcOfCircle(Part.Circle(Vector(32.5, 179, 0), Vector(0, 0, 1), 1.5), math.radians(90), math.radians(270)),  # 9
], False)
sketch11.addConstraint([
    Sketcher.Constraint("Tangent", 6, 2, 7, 2),
    Sketcher.Constraint("Tangent", 7, 1, 8, 1),
    Sketcher.Constraint("Tangent", 8, 2, 9, 2),
    Sketcher.Constraint("Tangent", 9, 1, 6, 1),
    Sketcher.Constraint("Horizontal", 6),
    Sketcher.Constraint("Horizontal", 8),
    Sketcher.Constraint("Equal", 0, 1),
    Sketcher.Constraint("Equal", 1, 2),
    Sketcher.Constraint("Equal", 2, 3),
    Sketcher.Constraint("Equal", 3, 4),
    Sketcher.Constraint("Equal", 4, 5),
    Sketcher.Constraint("Equal", 5, 7),
    Sketcher.Constraint("Vertical", 0, 3, 1, 3),
    Sketcher.Constraint("Vertical", 1, 3, 2, 3),
    Sketcher.Constraint("Vertical", 2, 3, 3, 3),
    Sketcher.Constraint("Vertical", 3, 3, 4, 3),
    Sketcher.Constraint("Vertical", 4, 3, 5, 3),
    Sketcher.Constraint("Diameter", 0, 3.0),
    Sketcher.Constraint("DistanceX", 6, 1, 6, 2, 35.0),
    Sketcher.Constraint("DistanceX", -1, 1, 0, 3, 50.0),
    Sketcher.Constraint("DistanceY", -1, 1, 1, 3, 125.0),
    Sketcher.Constraint("DistanceY", -1, 1, 2, 3, 98.0),
    Sketcher.Constraint("DistanceY", -1, 1, 3, 3, 71.0),
    Sketcher.Constraint("DistanceY", 4, 3, -1, 1, 8.0),
    Sketcher.Constraint("DistanceY", -1, 1, 5, 3, 11.0),
    Sketcher.Constraint("DistanceY", -1, 1, 0, 3, 111.5),
    Sketcher.Constraint("DistanceX", -1, 1, 7, 3, 67.5),
    Sketcher.Constraint("DistanceY", -1, 1, 7, 3, 178.980621),
])
sketch11.setExpression("Constraints[17]", "Params.sketch11_diameter")
sketch11.setExpression("Constraints[18]", "Params.sketch11_width")
pocket10 = doc.addObject("PartDesign::Pocket", "Pocket009")
body.addObject(pocket10)
pocket10.Profile = sketch11
pocket10.setExpression("Length", "Params.pocket10_length")
pocket10.Reversed = True

doc.recompute()
